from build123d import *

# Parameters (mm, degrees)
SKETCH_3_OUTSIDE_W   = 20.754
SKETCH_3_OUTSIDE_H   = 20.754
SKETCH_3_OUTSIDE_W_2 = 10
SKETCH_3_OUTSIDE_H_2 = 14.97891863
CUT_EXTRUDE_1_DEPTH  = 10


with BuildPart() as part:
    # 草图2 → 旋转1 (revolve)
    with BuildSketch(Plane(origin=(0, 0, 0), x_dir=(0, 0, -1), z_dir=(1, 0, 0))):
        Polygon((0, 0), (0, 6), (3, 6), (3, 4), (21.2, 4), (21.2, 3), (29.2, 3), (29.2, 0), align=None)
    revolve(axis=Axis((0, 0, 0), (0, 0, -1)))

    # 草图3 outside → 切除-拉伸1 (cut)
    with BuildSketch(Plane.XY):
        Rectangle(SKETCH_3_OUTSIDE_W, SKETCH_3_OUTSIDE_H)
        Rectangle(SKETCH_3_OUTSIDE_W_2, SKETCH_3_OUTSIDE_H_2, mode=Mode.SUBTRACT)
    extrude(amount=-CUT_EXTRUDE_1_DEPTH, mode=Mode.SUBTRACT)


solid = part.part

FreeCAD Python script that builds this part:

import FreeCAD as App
import Part
import Sketcher

V = App.Vector


def add_polygon(sketch, points):
    """Adds a closed chain of lines whose ends are joined by coincident constraints."""
    first, n = sketch.GeometryCount, len(points)
    for a, b in zip(points, points[1:] + points[:1]):
        sketch.addGeometry(Part.LineSegment(App.Vector(*a, 0), App.Vector(*b, 0)), False)
    for i in range(n):
        sketch.addConstraint(Sketcher.Constraint("Coincident", first + i, 2, first + (i + 1) % n, 1))

doc = App.newDocument("Part")
body = doc.addObject("PartDesign::Body", "Body")

sketch1 = body.newObject("Sketcher::SketchObject", "Sketch")
sketch1.AttachmentSupport = (doc.getObject("YZ_Plane"), [""])
sketch1.MapMode = "FlatFace"
add_polygon(sketch1, [(6, 0), (0, 0), (0, -29.2), (3, -29.2), (3, -21.2), (4, -21.2), (4, -3), (6, -3)])
sketch1.addConstraint([
    Sketcher.Constraint("Horizontal", 0),
    Sketcher.Constraint("Vertical", 1),
    Sketcher.Constraint("Horizontal", 2),
    Sketcher.Constraint("Vertical", 3),
    Sketcher.Constraint("Horizontal", 4),
    Sketcher.Constraint("Vertical", 5),
    Sketcher.Constraint("Horizontal", 6),
    Sketcher.Constraint("Vertical", 7),
    Sketcher.Constraint("Coincident", 0, 2, -1, 1),
    Sketcher.Constraint("Equal", 2, 7),
    Sketcher.Constraint("DistanceX", 0, 2, 0, 1, 6.0),
    Sketcher.Constraint("DistanceX", 2, 1, 2, 2, 3.0),
    Sketcher.Constraint("DistanceX", 4, 1, 4, 2, 1.0),
    Sketcher.Constraint("DistanceY", 3, 1, 3, 2, 8.0),
    Sketcher.Constraint("DistanceY", 1, 2, 1, 1, 29.2),
])
revolution = body.newObject("PartDesign::Revolution", "Revolution")
revolution.Profile = sketch1
revolution.ReferenceAxis = (sketch1, ["V_Axis"])
revolution.Angle = 360

sketch2 = body.newObject("Sketcher::SketchObject", "Sketch001")
sketch2.AttachmentSupport = (doc.getObject("XY_Plane"), [""])
sketch2.MapMode = "FlatFace"
add_polygon(sketch2, [(-10.377, 10.377), (-10.377, -10.377), (10.377, -10.377), (10.377, 10.377)])
add_polygon(sketch2, [(5, -7.489459), (-5, -7.489459), (-5, 7.489459), (5, 7.489459)])
sketch2.addConstraint([
    Sketcher.Constraint("Vertical", 0),
    Sketcher.Constraint("Horizontal", 1),
    Sketcher.Constraint("Vertical", 2),
    Sketcher.Constraint("Horizontal", 3),
    Sketcher.Constraint("Horizontal", 4),
    Sketcher.Constraint("Vertical", 5),
    Sketcher.Constraint("Horizontal", 6),
    Sketcher.Constraint("Vertical", 7),
    Sketcher.Constraint("Symmetric", 0, 2, 2, 2, -1, 1),
    Sketcher.Constraint("Symmetric", 4, 2, 6, 2, -1, 1),
    Sketcher.Constraint("Equal", 3, 0),
    Sketcher.Constraint("DistanceX", 4, 2, 4, 1, 10.0),
    Sketcher.Constraint("DistanceX", 1, 1, 1, 2, 20.754),
    Sketcher.Constraint("DistanceY", 5, 1, 5, 2, 14.978919),
])
pocket1 = body.newObject("PartDesign::Pocket", "Pocket")
pocket1.Profile = sketch2
pocket1.Length = 10

doc.recompute()
